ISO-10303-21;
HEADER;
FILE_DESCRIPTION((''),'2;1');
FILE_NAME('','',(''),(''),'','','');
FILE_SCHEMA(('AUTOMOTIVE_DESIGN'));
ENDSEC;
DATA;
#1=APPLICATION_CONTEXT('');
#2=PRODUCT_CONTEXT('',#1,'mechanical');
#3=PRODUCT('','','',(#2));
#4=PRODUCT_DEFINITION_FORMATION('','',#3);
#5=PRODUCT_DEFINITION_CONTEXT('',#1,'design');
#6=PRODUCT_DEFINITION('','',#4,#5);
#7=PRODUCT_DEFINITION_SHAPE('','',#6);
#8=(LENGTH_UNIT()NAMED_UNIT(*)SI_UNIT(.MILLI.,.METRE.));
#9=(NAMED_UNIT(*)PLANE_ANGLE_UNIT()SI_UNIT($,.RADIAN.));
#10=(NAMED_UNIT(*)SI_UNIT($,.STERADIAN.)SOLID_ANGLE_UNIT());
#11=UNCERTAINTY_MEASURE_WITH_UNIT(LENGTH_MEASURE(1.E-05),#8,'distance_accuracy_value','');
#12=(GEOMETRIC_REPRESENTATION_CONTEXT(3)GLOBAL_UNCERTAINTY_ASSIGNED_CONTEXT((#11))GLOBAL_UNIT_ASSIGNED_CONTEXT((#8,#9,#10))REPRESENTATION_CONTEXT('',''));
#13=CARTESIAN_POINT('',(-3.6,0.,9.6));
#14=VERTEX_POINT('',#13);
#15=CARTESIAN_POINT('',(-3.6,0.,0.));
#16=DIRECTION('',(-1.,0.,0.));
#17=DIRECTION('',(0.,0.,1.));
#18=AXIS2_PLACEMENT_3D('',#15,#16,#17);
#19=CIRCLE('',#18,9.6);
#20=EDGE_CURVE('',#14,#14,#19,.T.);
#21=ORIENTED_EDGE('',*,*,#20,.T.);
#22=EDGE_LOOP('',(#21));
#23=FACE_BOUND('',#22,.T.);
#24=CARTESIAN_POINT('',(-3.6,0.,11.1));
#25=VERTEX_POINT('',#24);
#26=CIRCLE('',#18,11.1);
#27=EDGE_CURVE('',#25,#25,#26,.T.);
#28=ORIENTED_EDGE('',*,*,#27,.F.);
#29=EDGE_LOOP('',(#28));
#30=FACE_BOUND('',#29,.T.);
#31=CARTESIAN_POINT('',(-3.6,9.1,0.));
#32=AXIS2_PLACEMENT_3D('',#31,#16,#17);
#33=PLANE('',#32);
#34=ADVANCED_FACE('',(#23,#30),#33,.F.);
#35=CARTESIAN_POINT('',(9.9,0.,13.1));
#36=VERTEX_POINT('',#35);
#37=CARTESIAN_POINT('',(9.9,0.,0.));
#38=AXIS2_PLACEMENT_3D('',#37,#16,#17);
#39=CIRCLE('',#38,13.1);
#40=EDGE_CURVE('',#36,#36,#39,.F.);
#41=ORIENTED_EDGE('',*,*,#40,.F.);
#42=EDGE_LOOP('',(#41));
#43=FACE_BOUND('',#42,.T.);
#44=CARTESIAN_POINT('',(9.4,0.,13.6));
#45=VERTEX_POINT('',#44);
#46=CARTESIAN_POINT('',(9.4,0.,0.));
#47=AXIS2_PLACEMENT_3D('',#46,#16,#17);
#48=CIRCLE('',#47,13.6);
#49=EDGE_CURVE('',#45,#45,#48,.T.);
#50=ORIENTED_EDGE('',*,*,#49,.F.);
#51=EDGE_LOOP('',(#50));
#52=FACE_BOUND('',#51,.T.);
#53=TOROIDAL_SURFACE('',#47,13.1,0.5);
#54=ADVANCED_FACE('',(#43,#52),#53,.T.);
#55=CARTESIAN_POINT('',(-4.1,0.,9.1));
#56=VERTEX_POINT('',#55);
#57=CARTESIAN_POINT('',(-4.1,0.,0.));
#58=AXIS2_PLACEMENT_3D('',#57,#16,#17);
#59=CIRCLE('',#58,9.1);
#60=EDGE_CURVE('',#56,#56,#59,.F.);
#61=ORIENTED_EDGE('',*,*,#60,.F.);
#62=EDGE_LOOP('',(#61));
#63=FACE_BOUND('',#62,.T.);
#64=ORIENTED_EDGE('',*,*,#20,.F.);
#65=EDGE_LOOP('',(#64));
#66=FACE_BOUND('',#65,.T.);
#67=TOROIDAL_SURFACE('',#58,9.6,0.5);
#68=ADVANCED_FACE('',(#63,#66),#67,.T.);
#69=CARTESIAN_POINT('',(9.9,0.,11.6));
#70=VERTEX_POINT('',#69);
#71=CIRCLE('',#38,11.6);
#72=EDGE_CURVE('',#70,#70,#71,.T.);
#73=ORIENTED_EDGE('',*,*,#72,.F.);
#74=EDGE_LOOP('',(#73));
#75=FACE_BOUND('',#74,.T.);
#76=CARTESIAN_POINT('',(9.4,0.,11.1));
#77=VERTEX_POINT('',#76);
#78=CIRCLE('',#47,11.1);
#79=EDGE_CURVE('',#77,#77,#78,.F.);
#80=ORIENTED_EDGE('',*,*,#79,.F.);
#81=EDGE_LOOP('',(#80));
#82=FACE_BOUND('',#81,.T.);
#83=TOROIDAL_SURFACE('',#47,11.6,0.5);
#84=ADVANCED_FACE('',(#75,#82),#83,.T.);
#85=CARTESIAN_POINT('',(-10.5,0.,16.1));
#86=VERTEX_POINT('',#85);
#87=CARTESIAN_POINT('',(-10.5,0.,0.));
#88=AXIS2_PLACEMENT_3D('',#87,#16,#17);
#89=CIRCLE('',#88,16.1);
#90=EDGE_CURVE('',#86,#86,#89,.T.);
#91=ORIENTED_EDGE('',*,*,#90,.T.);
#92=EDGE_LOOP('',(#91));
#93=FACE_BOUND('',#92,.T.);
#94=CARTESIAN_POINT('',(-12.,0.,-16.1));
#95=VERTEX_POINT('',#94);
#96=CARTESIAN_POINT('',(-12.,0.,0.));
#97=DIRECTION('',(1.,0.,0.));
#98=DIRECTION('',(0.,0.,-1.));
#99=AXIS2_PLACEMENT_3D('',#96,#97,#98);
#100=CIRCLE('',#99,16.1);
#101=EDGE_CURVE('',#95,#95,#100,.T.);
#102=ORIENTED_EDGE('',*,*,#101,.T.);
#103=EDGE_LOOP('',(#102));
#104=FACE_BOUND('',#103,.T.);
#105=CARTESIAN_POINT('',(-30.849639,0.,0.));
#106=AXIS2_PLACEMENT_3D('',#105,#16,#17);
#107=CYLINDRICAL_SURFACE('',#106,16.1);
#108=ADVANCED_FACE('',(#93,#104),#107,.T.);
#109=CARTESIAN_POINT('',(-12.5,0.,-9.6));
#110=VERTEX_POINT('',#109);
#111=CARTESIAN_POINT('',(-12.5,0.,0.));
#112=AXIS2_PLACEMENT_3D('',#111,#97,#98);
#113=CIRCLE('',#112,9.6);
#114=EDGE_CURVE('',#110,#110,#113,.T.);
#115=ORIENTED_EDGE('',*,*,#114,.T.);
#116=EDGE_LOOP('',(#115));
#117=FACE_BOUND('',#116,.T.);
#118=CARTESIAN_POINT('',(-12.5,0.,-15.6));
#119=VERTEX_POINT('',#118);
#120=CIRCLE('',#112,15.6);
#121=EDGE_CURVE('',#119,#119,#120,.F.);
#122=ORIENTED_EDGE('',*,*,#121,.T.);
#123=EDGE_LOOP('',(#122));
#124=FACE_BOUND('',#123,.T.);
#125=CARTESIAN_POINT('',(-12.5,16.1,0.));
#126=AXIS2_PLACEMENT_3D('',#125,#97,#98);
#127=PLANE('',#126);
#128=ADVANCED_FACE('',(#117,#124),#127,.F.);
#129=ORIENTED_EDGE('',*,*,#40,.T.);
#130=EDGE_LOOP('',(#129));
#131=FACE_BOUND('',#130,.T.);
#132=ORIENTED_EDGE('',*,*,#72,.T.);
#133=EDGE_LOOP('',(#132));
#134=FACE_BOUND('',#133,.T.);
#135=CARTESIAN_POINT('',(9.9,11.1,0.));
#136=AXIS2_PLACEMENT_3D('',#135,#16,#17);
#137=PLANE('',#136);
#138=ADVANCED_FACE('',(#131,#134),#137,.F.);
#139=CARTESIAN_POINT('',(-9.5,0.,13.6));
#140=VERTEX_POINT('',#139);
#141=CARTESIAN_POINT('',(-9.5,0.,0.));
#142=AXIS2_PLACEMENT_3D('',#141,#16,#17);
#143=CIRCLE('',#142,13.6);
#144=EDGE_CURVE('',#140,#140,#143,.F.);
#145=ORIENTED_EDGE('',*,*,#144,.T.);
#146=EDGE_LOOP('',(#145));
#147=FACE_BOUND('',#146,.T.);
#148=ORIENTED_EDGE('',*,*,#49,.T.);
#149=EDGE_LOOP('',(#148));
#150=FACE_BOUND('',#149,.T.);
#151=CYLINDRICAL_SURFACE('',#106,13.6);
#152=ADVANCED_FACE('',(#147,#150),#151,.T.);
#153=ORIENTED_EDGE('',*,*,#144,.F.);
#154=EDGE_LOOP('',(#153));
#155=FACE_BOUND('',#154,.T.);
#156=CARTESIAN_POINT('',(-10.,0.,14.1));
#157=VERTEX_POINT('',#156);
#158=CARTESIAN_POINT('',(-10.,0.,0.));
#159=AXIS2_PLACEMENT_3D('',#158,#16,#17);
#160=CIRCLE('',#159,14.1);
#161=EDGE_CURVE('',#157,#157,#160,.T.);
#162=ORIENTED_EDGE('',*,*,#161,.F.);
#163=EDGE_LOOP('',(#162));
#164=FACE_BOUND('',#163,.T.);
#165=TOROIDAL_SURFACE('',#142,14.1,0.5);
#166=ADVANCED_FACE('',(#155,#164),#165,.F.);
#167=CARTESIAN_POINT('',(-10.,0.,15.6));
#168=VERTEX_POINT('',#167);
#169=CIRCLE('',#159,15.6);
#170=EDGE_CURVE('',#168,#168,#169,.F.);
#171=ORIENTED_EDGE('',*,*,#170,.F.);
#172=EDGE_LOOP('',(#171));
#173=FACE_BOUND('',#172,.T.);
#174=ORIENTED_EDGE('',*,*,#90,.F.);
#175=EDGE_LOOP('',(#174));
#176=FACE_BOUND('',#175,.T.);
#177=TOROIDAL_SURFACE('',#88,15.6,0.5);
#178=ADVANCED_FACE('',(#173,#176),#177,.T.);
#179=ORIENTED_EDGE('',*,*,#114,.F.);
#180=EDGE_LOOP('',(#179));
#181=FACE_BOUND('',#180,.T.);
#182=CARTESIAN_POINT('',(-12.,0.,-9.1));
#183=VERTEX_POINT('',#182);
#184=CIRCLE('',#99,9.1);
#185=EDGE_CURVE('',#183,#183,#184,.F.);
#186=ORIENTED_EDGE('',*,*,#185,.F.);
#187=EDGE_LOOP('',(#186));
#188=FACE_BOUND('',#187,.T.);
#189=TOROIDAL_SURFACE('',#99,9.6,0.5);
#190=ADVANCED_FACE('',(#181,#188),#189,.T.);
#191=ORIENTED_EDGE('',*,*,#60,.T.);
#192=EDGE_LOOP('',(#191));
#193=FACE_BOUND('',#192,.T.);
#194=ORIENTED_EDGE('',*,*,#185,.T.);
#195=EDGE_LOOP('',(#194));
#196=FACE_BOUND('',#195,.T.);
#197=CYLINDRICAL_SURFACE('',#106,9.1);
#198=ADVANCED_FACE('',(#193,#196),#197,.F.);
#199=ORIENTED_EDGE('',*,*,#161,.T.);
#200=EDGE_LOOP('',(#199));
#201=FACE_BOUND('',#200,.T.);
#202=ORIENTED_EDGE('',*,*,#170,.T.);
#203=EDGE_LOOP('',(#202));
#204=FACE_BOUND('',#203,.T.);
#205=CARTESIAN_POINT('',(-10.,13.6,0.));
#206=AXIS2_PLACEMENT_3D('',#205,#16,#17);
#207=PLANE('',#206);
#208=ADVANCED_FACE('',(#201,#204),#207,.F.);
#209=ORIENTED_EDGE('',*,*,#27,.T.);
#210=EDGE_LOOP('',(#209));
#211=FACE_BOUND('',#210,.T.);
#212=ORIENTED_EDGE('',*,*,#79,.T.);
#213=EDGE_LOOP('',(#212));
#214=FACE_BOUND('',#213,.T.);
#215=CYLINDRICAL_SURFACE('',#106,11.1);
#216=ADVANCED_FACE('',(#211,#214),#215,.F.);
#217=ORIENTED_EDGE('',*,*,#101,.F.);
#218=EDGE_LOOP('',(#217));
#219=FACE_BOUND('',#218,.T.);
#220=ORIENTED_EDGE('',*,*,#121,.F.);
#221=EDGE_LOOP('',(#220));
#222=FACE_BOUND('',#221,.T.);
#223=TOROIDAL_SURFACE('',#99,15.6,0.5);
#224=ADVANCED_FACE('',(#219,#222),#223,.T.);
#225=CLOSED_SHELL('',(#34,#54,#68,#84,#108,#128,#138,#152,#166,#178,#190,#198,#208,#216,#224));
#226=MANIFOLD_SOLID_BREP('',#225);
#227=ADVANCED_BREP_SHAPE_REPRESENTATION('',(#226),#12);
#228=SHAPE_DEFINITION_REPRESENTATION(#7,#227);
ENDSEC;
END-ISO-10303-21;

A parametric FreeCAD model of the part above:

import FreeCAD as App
import Part
import Sketcher
from FreeCAD import Vector


def edges_at(feature, points):
    """Names of the edges that pass closest to the given points."""
    edges = feature.Shape.Edges
    near = lambda p: min(range(len(edges)), key=lambda i: edges[i].distToShape(Part.Vertex(*p))[0])
    return sorted({f"Edge{near(p) + 1}" for p in points})

doc = App.newDocument("Part")
params = doc.addObject("Spreadsheet::Sheet", "Params")
for row, (alias, value) in enumerate([
    ("sketch1_height", "7 mm"),
    ("sketch1_height2", "2 mm"),
    ("sketch1_width", "8.9 mm"),
    ("sketch1_width2", "13.5 mm"),
    ("revolution_angle", "360 deg"),
    ("fillet_radius", "0.5 mm"),
], start=1):
    params.set(f"A{row}", alias)
    params.set(f"B{row}", "=" + value)
    params.setAlias(f"B{row}", alias)

body = doc.addObject("PartDesign::Body", "Body")

# Sketch on XY plane
sketch1 = body.newObject("Sketcher::SketchObject", "Sketch")
sketch1.AttachmentSupport = (doc.getObject("XY_Plane"), [""])
sketch1.MapMode = "FlatFace"
sketch1.addGeometry([
    Part.LineSegment(Vector(-12.5, 16.1, 0), Vector(-12.5, 9.1, 0)),  # 0
    Part.LineSegment(Vector(-12.5, 9.1, 0), Vector(-3.6, 9.1, 0)),  # 1
    Part.LineSegment(Vector(-3.6, 9.1, 0), Vector(-3.6, 11.1, 0)),  # 2
    Part.LineSegment(Vector(-3.6, 11.1, 0), Vector(9.9, 11.1, 0)),  # 3
    Part.LineSegment(Vector(9.9, 11.1, 0), Vector(9.9, 13.6, 0)),  # 4
    Part.LineSegment(Vector(9.9, 13.6, 0), Vector(-10, 13.6, 0)),  # 5
    Part.LineSegment(Vector(-10, 13.6, 0), Vector(-10, 16.1, 0)),  # 6
    Part.LineSegment(Vector(-10, 16.1, 0), Vector(-12.5, 16.1, 0)),  # 7
], False)
sketch1.addConstraint([
    Sketcher.Constraint("Coincident", 0, 2, 1, 1),
    Sketcher.Constraint("Coincident", 1, 2, 2, 1),
    Sketcher.Constraint("Coincident", 2, 2, 3, 1),
    Sketcher.Constraint("Coincident", 3, 2, 4, 1),
    Sketcher.Constraint("Coincident", 4, 2, 5, 1),
    Sketcher.Constraint("Coincident", 5, 2, 6, 1),
    Sketcher.Constraint("Coincident", 6, 2, 7, 1),
    Sketcher.Constraint("Coincident", 7, 2, 0, 1),
    Sketcher.Constraint("Vertical", 0),
    Sketcher.Constraint("Horizontal", 1),
    Sketcher.Constraint("Vertical", 2),
    Sketcher.Constraint("Horizontal", 3),
    Sketcher.Constraint("Vertical", 4),
    Sketcher.Constraint("Horizontal", 5),
    Sketcher.Constraint("Vertical", 6),
    Sketcher.Constraint("Horizontal", 7),
    Sketcher.Constraint("Equal", 7, 4),
    Sketcher.Constraint("Equal", 4, 6),
    Sketcher.Constraint("DistanceY", 0, 2, 0, 1, 7.0),
    Sketcher.Constraint("DistanceY", 2, 1, 2, 2, 2.0),
    Sketcher.Constraint("DistanceX", 1, 1, 1, 2, 8.9),
    Sketcher.Constraint("DistanceX", 3, 1, 3, 2, 13.5),
    Sketcher.Constraint("DistanceX", 5, 2, -1, 1, 10.0),
    Sketcher.Constraint("DistanceY", -1, 1, 0, 2, 9.1),
])
sketch1.setExpression("Constraints[18]", "Params.sketch1_height")
sketch1.setExpression("Constraints[19]", "Params.sketch1_height2")
sketch1.setExpression("Constraints[20]", "Params.sketch1_width")
sketch1.setExpression("Constraints[21]", "Params.sketch1_width2")
revolution = body.newObject("PartDesign::Revolution", "Revolution")
revolution.Profile = sketch1
revolution.ReferenceAxis = (sketch1, ["H_Axis"])
revolution.setExpression("Angle", "Params.revolution_angle")
doc.recompute()

fillet = body.newObject("PartDesign::Fillet", "Fillet")
fillet.Base = (revolution, edges_at(revolution, [
    (-12.5, 0, -16.1),
    (-10, 0, -16.1),
    (-10, 0, -13.6),
    (9.9, 0, -13.6),
    (9.9, 0, -11.1),
    (-3.6, 0, -9.1),
    (-12.5, 0, -9.1),
]))
fillet.setExpression("Radius", "Params.fillet_radius")

doc.recompute()
